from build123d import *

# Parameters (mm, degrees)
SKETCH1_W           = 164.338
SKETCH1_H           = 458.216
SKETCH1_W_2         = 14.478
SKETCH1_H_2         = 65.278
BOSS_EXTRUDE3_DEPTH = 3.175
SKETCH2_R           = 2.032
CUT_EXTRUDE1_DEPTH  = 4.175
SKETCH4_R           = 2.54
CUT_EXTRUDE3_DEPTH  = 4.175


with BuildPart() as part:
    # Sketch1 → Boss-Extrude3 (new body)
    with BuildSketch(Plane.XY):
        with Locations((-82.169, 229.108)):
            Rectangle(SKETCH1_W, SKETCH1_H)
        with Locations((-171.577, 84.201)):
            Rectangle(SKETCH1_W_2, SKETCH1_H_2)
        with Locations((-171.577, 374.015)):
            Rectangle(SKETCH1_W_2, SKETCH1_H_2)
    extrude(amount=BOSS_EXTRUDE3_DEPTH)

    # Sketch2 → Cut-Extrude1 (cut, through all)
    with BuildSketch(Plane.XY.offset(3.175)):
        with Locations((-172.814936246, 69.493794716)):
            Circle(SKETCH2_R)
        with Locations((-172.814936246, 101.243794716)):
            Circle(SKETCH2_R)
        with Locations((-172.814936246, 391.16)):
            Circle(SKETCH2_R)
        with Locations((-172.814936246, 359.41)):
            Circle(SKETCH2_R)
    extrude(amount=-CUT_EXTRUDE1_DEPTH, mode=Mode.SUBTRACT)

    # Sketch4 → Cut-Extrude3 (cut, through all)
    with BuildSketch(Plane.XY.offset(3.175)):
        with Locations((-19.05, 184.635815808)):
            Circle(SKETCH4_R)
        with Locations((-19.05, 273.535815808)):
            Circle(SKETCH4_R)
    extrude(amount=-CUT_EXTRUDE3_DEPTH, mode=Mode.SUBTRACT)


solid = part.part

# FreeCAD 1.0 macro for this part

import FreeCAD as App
import Part
import Sketcher

V = App.Vector
Q = App.Units.Quantity


def add_polygon(sketch, points):
    """Adds a closed chain of lines whose ends are joined by coincident constraints."""
    first, n = sketch.GeometryCount, len(points)
    for a, b in zip(points, points[1:] + points[:1]):
        sketch.addGeometry(Part.LineSegment(App.Vector(*a, 0), App.Vector(*b, 0)), False)
    for i in range(n):
        sketch.addConstraint(Sketcher.Constraint("Coincident", first + i, 2, first + (i + 1) % n, 1))

doc = App.newDocument("Part")
params = doc.addObject("Spreadsheet::Sheet", "Params")
for row, (alias, value) in enumerate([
    ("sketch1_width", "6.47 in"),
    ("sketch1_width2", "0.57 in"),
    ("sketch1_height", "2.03 in"),
    ("sketch1_height2", "18.04 in"),
    ("sketch1_height3", "2.57 in"),
    ("pad1_length", "0.125 in"),
    ("sketch2_diameter", "0.16 in"),
    ("sketch3_diameter", "0.2 in"),
], start=1):
    params.set(f"A{row}", alias)
    params.set(f"B{row}", "=" + value)
    params.setAlias(f"B{row}", alias)

body = doc.addObject("PartDesign::Body", "Body")

# Sketch on XY plane
sketch1 = body.newObject("Sketcher::SketchObject", "Sketch")
sketch1.AttachmentSupport = (doc.getObject("XY_Plane"), [""])
sketch1.MapMode = "FlatFace"
add_polygon(sketch1, [(-164, 52), (-164, 0), (0, 0), (0, 458), (-164, 458), (-164, 407), (-179, 407), (-179, 341), (-164, 341), (-164, 117), (-179, 117), (-179, 52)])  # lines 0-11
sketch1.addConstraint(Sketcher.Constraint("Vertical", 0))
sketch1.addConstraint(Sketcher.Constraint("Horizontal", 1))
sketch1.addConstraint(Sketcher.Constraint("Vertical", 2))
sketch1.addConstraint(Sketcher.Constraint("Horizontal", 3))
sketch1.addConstraint(Sketcher.Constraint("Vertical", 4))
sketch1.addConstraint(Sketcher.Constraint("Horizontal", 5))
sketch1.addConstraint(Sketcher.Constraint("Vertical", 6))
sketch1.addConstraint(Sketcher.Constraint("Horizontal", 7))
sketch1.addConstraint(Sketcher.Constraint("Vertical", 8))
sketch1.addConstraint(Sketcher.Constraint("Horizontal", 9))
sketch1.addConstraint(Sketcher.Constraint("Vertical", 10))
sketch1.addConstraint(Sketcher.Constraint("Horizontal", 11))
sketch1.addConstraint(Sketcher.Constraint("Coincident", 1, 2, -1, 1))
sketch1.addConstraint(Sketcher.Constraint("Vertical", 0, 2, 3, 2))
sketch1.addConstraint(Sketcher.Constraint("Vertical", 4, 2, 7, 2))
sketch1.addConstraint(Sketcher.Constraint("Vertical", 6, 2, 9, 2))
sketch1.addConstraint(Sketcher.Constraint("Equal", 0, 4))
sketch1.addConstraint(Sketcher.Constraint("Equal", 6, 10))
sketch1.addConstraint(Sketcher.Constraint("DistanceX", 1, 1, 1, 2, Q("6.47 in")))
sketch1.addConstraint(Sketcher.Constraint("DistanceX", 5, 2, 5, 1, Q("0.57 in")))
sketch1.addConstraint(Sketcher.Constraint("DistanceY", 0, 2, 0, 1, Q("2.03 in")))
sketch1.addConstraint(Sketcher.Constraint("DistanceY", 2, 1, 2, 2, Q("18.04 in")))
sketch1.addConstraint(Sketcher.Constraint("DistanceY", 6, 2, 6, 1, Q("2.57 in")))
sketch1.setExpression("Constraints[30]", "Params.sketch1_width")
sketch1.setExpression("Constraints[31]", "Params.sketch1_width2")
sketch1.setExpression("Constraints[32]", "Params.sketch1_height")
sketch1.setExpression("Constraints[33]", "Params.sketch1_height2")
sketch1.setExpression("Constraints[34]", "Params.sketch1_height3")
pad1 = body.newObject("PartDesign::Pad", "Pad")
pad1.Profile = sketch1
pad1.setExpression("Length", "Params.pad1_length")

# Sketch on XY plane
sketch2 = body.newObject("Sketcher::SketchObject", "Sketch001")
sketch2.AttachmentSupport = (doc.getObject("XY_Plane"), [""])
sketch2.MapMode = "FlatFace"
sketch2.AttachmentOffset = App.Placement(V(0, 0, 0.125 * 25.4), App.Rotation())
sketch2.addGeometry(Part.Circle(V(-172.8, 69.5, 0), V(0, 0, 1), 2), False)
sketch2.addGeometry(Part.Circle(V(-172.8, 101.2, 0), V(0, 0, 1), 2), False)
sketch2.addGeometry(Part.Circle(V(-172.8, 391.2, 0), V(0, 0, 1), 2), False)
sketch2.addGeometry(Part.Circle(V(-172.8, 359.4, 0), V(0, 0, 1), 2), False)
sketch2.addConstraint(Sketcher.Constraint("Equal", 0, 1))
sketch2.addConstraint(Sketcher.Constraint("Equal", 1, 2))
sketch2.addConstraint(Sketcher.Constraint("Equal", 2, 3))
sketch2.addConstraint(Sketcher.Constraint("Vertical", 0, 3, 1, 3))
sketch2.addConstraint(Sketcher.Constraint("Vertical", 1, 3, 2, 3))
sketch2.addConstraint(Sketcher.Constraint("Vertical", 2, 3, 3, 3))
sketch2.addConstraint(Sketcher.Constraint("Diameter", 0, Q("0.16 in")))
sketch2.addConstraint(Sketcher.Constraint("DistanceY", -1, 1, 2, 3, Q("15.4 in")))
sketch2.addConstraint(Sketcher.Constraint("DistanceY", -1, 1, 3, 3, Q("14.15 in")))
sketch2.addConstraint(Sketcher.Constraint("DistanceY", 0, 3, 1, 3, Q("1.25 in")))
sketch2.addConstraint(Sketcher.Constraint("DistanceX", 0, 3, -1, 1, Q("172.814936 mm")))
sketch2.addConstraint(Sketcher.Constraint("DistanceY", -1, 1, 0, 3, Q("69.493795 mm")))
sketch2.setExpression("Constraints[6]", "Params.sketch2_diameter")
pocket1 = body.newObject("PartDesign::Pocket", "Pocket")
pocket1.Profile = sketch2
pocket1.Type = "ThroughAll"

# Sketch on XY plane
sketch3 = body.newObject("Sketcher::SketchObject", "Sketch002")
sketch3.AttachmentSupport = (doc.getObject("XY_Plane"), [""])
sketch3.MapMode = "FlatFace"
sketch3.AttachmentOffset = App.Placement(V(0, 0, 0.125 * 25.4), App.Rotation())
sketch3.addGeometry(Part.Circle(V(-19.1, 184.6, 0), V(0, 0, 1), 2.5), False)
sketch3.addGeometry(Part.Circle(V(-19.1, 273.5, 0), V(0, 0, 1), 2.5), False)
sketch3.addConstraint(Sketcher.Constraint("Equal", 0, 1))
sketch3.addConstraint(Sketcher.Constraint("Vertical", 0, 3, 1, 3))
sketch3.addConstraint(Sketcher.Constraint("Diameter", 0, Q("0.2 in")))
sketch3.addConstraint(Sketcher.Constraint("DistanceY", 0, 3, 1, 3, Q("3.5 in")))
sketch3.addConstraint(Sketcher.Constraint("DistanceX", 0, 3, -1, 1, Q("0.75 in")))
sketch3.addConstraint(Sketcher.Constraint("DistanceY", -1, 1, 0, 3, Q("184.635816 mm")))
sketch3.setExpression("Constraints[2]", "Params.sketch3_diameter")
pocket2 = body.newObject("PartDesign::Pocket", "Pocket001")
pocket2.Profile = sketch3
pocket2.Type = "ThroughAll"

doc.recompute()
